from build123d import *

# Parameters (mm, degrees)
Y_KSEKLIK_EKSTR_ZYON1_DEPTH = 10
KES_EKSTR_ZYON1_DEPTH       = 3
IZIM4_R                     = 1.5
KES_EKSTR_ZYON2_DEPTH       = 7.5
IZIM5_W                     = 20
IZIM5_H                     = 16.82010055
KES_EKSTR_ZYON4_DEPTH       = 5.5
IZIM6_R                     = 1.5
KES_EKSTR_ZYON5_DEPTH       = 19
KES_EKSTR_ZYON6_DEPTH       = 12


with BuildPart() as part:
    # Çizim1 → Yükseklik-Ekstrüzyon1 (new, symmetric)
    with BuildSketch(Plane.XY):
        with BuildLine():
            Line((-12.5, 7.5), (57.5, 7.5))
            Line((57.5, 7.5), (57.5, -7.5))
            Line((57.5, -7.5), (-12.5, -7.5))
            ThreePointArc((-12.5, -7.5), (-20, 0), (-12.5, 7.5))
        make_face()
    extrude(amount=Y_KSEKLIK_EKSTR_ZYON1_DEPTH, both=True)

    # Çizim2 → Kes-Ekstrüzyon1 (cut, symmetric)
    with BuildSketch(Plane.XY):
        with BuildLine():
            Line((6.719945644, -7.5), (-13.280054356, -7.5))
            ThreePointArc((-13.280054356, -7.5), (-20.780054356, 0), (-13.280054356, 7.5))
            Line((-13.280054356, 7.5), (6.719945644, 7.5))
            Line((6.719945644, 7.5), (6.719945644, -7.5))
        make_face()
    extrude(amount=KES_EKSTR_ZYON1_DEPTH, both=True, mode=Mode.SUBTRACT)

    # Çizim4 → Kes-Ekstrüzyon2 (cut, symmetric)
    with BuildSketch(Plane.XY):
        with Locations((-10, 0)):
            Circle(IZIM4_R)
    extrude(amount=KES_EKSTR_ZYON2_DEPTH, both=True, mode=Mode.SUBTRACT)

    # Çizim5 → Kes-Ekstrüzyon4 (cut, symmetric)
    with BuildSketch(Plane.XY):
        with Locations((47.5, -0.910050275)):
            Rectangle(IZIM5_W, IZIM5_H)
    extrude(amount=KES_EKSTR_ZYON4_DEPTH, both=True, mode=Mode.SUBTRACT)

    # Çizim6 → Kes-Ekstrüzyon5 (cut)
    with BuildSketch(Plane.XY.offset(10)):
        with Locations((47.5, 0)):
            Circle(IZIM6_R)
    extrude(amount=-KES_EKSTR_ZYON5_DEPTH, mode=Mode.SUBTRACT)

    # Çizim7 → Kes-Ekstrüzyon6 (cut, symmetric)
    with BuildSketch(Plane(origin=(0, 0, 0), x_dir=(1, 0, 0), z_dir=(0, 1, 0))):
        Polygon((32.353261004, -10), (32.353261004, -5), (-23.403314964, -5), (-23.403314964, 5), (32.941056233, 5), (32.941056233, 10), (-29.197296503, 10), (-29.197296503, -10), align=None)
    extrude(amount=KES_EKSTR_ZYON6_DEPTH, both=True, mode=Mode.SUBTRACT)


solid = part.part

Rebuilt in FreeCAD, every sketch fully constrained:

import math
import FreeCAD as App
import Part
import Sketcher
from FreeCAD import Vector
Q = App.Units.Quantity


def add_polygon(sketch, points):
    """Adds a closed chain of lines whose ends are joined by coincident constraints."""
    first, n = sketch.GeometryCount, len(points)
    for a, b in zip(points, points[1:] + points[:1]):
        sketch.addGeometry(Part.LineSegment(App.Vector(*a, 0), App.Vector(*b, 0)), False)
    for i in range(n):
        sketch.addConstraint(Sketcher.Constraint("Coincident", first + i, 2, first + (i + 1) % n, 1))

doc = App.newDocument("Part")
body = doc.addObject("PartDesign::Body", "Body")

sketch1 = doc.addObject("Sketcher::SketchObject", "Sketch")
body.addObject(sketch1)
sketch1.AttachmentSupport = (doc.XY_Plane, [""])
sketch1.MapMode = "FlatFace"
sketch1.addGeometry([
    Part.LineSegment(Vector(58, 8, 0), Vector(-12, 8, 0)),
    Part.ArcOfCircle(Part.Circle(Vector(-12, 0, 0), Vector(0, 0, 1), 8), math.radians(90), math.radians(270)),
    Part.LineSegment(Vector(-12, -8, 0), Vector(58, -8, 0)),
    Part.LineSegment(Vector(58, -8, 0), Vector(58, 8, 0)),
], False)
sketch1.addConstraint([
    Sketcher.Constraint("Tangent", 0, 2, 1, 1),
    Sketcher.Constraint("Tangent", 1, 2, 2, 1),
    Sketcher.Constraint("Coincident", 2, 2, 3, 1),
    Sketcher.Constraint("Coincident", 3, 2, 0, 1),
    Sketcher.Constraint("Horizontal", 0),
    Sketcher.Constraint("Horizontal", 2),
    Sketcher.Constraint("Vertical", 3),
    Sketcher.Constraint("PointOnObject", 1, 3, -1),
    Sketcher.Constraint("Radius", 1, Q("7.5 mm")),
    Sketcher.Constraint("DistanceX", 0, 2, 0, 1, Q("70 mm")),
    Sketcher.Constraint("DistanceX", 1, 3, -1, 1, Q("12.5 mm")),
])
pad1 = doc.addObject("PartDesign::Pad", "Pad")
body.addObject(pad1)
pad1.Profile = sketch1
pad1.Length = 20
pad1.Midplane = True

sketch2 = doc.addObject("Sketcher::SketchObject", "Sketch001")
body.addObject(sketch2)
sketch2.AttachmentSupport = (doc.XY_Plane, [""])
sketch2.MapMode = "FlatFace"
sketch2.addGeometry([
    Part.LineSegment(Vector(-13, -8, 0), Vector(7, -8, 0)),
    Part.LineSegment(Vector(7, -8, 0), Vector(7, 8, 0)),
    Part.LineSegment(Vector(7, 8, 0), Vector(-13, 8, 0)),
    Part.ArcOfCircle(Part.Circle(Vector(-13, 0, 0), Vector(0, 0, 1), 8), math.radians(90), math.radians(270)),
], False)
sketch2.addConstraint([
    Sketcher.Constraint("Coincident", 0, 2, 1, 1),
    Sketcher.Constraint("Coincident", 1, 2, 2, 1),
    Sketcher.Constraint("Tangent", 2, 2, 3, 1),
    Sketcher.Constraint("Tangent", 3, 2, 0, 1),
    Sketcher.Constraint("Horizontal", 0),
    Sketcher.Constraint("Vertical", 1),
    Sketcher.Constraint("Horizontal", 2),
    Sketcher.Constraint("PointOnObject", 3, 3, -1),
    Sketcher.Constraint("Radius", 3, Q("7.5 mm")),
    Sketcher.Constraint("DistanceX", 0, 1, 0, 2, Q("20 mm")),
    Sketcher.Constraint("DistanceX", 3, 3, -1, 1, Q("13.280054 mm")),
])
pocket1 = doc.addObject("PartDesign::Pocket", "Pocket")
body.addObject(pocket1)
pocket1.Profile = sketch2
pocket1.Length = 6
pocket1.Midplane = True

sketch3 = doc.addObject("Sketcher::SketchObject", "Sketch002")
body.addObject(sketch3)
sketch3.AttachmentSupport = (doc.XY_Plane, [""])
sketch3.MapMode = "FlatFace"
sketch3.addGeometry(Part.Circle(Vector(-10, 0, 0), Vector(0, 0, 1), 1.5), False)
sketch3.addConstraint([
    Sketcher.Constraint("PointOnObject", 0, 3, -1),
    Sketcher.Constraint("Diameter", 0, Q("3 mm")),
    Sketcher.Constraint("DistanceX", 0, 3, -1, 1, Q("10 mm")),
])
pocket2 = doc.addObject("PartDesign::Pocket", "Pocket001")
body.addObject(pocket2)
pocket2.Profile = sketch3
pocket2.Length = 15
pocket2.Midplane = True

sketch4 = doc.addObject("Sketcher::SketchObject", "Sketch003")
body.addObject(sketch4)
sketch4.AttachmentSupport = (doc.XY_Plane, [""])
sketch4.MapMode = "FlatFace"
add_polygon(sketch4, [(38, 8), (38, -9), (58, -9), (58, 8)])
sketch4.addConstraint([
    Sketcher.Constraint("Vertical", 0),
    Sketcher.Constraint("Horizontal", 1),
    Sketcher.Constraint("Vertical", 2),
    Sketcher.Constraint("Horizontal", 3),
    Sketcher.Constraint("DistanceX", 1, 1, 1, 2, Q("20 mm")),
    Sketcher.Constraint("DistanceX", -1, 1, 0, 2, Q("37.5 mm")),
    Sketcher.Constraint("DistanceY", -1, 1, 2, 2, Q("7.5 mm")),
    Sketcher.Constraint("DistanceY", 0, 2, 0, 1, Q("16.820101 mm")),
])
pocket3 = doc.addObject("PartDesign::Pocket", "Pocket002")
body.addObject(pocket3)
pocket3.Profile = sketch4
pocket3.Length = 11
pocket3.Midplane = True

sketch5 = doc.addObject("Sketcher::SketchObject", "Sketch004")
body.addObject(sketch5)
sketch5.AttachmentSupport = (doc.XY_Plane, [""])
sketch5.MapMode = "FlatFace"
sketch5.AttachmentOffset = App.Placement(Vector(0, 0, 10), App.Rotation())
sketch5.addGeometry(Part.Circle(Vector(47.5, 0, 0), Vector(0, 0, 1), 1.5), False)
sketch5.addConstraint([
    Sketcher.Constraint("PointOnObject", 0, 3, -1),
    Sketcher.Constraint("Diameter", 0, Q("3 mm")),
    Sketcher.Constraint("DistanceX", -1, 1, 0, 3, Q("47.5 mm")),
])
pocket4 = doc.addObject("PartDesign::Pocket", "Pocket003")
body.addObject(pocket4)
pocket4.Profile = sketch5
pocket4.Length = 19

sketch6 = doc.addObject("Sketcher::SketchObject", "Sketch005")
body.addObject(sketch6)
sketch6.AttachmentSupport = (doc.XZ_Plane, [""])
sketch6.MapMode = "FlatFace"
add_polygon(sketch6, [(32, 10), (32, 5), (-23, 5), (-23, -5), (33, -5), (33, -10), (-29, -10), (-29, 10)])
sketch6.addConstraint([
    Sketcher.Constraint("Vertical", 0),
    Sketcher.Constraint("Horizontal", 1),
    Sketcher.Constraint("Vertical", 2),
    Sketcher.Constraint("Horizontal", 3),
    Sketcher.Constraint("Vertical", 4),
    Sketcher.Constraint("Horizontal", 5),
    Sketcher.Constraint("Vertical", 6),
    Sketcher.Constraint("Horizontal", 7),
    Sketcher.Constraint("Equal", 0, 4),
    Sketcher.Constraint("DistanceY", 0, 2, 0, 1, Q("5 mm")),
    Sketcher.Constraint("DistanceY", 2, 2, 2, 1, Q("10 mm")),
    Sketcher.Constraint("DistanceY", -1, 1, 0, 2, Q("5 mm")),
    Sketcher.Constraint("DistanceX", 3, 1, 3, 2, Q("56.344371 mm")),
    Sketcher.Constraint("DistanceX", 1, 2, 1, 1, Q("55.756576 mm")),
    Sketcher.Constraint("DistanceX", 5, 2, 5, 1, Q("62.138353 mm")),
    Sketcher.Constraint("DistanceX", -1, 1, 0, 2, Q("32.353261 mm")),
])
pocket5 = doc.addObject("PartDesign::Pocket", "Pocket004")
body.addObject(pocket5)
pocket5.Profile = sketch6
pocket5.Length = 24
pocket5.Midplane = True

doc.recompute()
